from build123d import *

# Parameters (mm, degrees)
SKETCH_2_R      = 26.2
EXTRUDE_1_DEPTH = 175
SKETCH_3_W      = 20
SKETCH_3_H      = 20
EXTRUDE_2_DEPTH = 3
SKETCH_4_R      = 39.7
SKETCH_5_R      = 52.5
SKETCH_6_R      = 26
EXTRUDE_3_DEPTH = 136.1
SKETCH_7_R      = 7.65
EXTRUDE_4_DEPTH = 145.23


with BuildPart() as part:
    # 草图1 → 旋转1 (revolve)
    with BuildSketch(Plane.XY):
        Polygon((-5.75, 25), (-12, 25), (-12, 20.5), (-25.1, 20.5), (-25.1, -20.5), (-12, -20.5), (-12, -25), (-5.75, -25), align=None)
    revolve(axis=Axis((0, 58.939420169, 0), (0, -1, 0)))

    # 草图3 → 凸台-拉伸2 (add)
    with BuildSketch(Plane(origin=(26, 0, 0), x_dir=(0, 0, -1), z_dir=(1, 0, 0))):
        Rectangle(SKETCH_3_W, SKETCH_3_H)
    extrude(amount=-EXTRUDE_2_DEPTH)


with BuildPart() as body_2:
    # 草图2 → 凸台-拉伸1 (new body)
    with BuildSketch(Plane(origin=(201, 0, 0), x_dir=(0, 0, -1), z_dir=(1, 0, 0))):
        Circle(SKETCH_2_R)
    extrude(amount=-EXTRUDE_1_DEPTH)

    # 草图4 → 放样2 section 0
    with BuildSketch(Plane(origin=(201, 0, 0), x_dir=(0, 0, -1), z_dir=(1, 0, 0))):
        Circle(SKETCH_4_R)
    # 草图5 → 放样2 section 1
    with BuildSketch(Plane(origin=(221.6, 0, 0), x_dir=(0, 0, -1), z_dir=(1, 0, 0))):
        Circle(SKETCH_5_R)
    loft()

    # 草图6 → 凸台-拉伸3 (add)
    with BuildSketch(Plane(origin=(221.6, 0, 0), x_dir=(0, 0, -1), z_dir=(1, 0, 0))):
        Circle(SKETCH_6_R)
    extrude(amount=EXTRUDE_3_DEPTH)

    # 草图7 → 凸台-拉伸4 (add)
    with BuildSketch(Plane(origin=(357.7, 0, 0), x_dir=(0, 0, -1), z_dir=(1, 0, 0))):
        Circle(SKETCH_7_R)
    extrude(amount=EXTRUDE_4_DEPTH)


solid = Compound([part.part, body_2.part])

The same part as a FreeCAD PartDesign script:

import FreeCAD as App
import Part
import Sketcher
from FreeCAD import Vector
Q = App.Units.Quantity


def add_polygon(sketch, points):
    """Adds a closed chain of lines whose ends are joined by coincident constraints."""
    first, n = sketch.GeometryCount, len(points)
    for a, b in zip(points, points[1:] + points[:1]):
        sketch.addGeometry(Part.LineSegment(App.Vector(*a, 0), App.Vector(*b, 0)), False)
    for i in range(n):
        sketch.addConstraint(Sketcher.Constraint("Coincident", first + i, 2, first + (i + 1) % n, 1))

doc = App.newDocument("Part")
body = doc.addObject("PartDesign::Body", "Body")

# Sketch on XY plane
sketch1 = body.newObject("Sketcher::SketchObject", "Sketch")
sketch1.AttachmentSupport = (doc.getObject("XY_Plane"), [""])
sketch1.MapMode = "FlatFace"
add_polygon(sketch1, [(-5.8, 25), (-12, 25), (-12, 20.5), (-25.1, 20.5), (-25.1, -20.5), (-12, -20.5), (-12, -25), (-5.8, -25)])  # lines 0-7
sketch1.addConstraint(Sketcher.Constraint("Horizontal", 0))
sketch1.addConstraint(Sketcher.Constraint("Vertical", 1))
sketch1.addConstraint(Sketcher.Constraint("Horizontal", 2))
sketch1.addConstraint(Sketcher.Constraint("Vertical", 3))
sketch1.addConstraint(Sketcher.Constraint("Horizontal", 4))
sketch1.addConstraint(Sketcher.Constraint("Vertical", 5))
sketch1.addConstraint(Sketcher.Constraint("Horizontal", 6))
sketch1.addConstraint(Sketcher.Constraint("Vertical", 7))
sketch1.addConstraint(Sketcher.Constraint("Symmetric", 1, 2, 4, 2, -1))
sketch1.addConstraint(Sketcher.Constraint("Equal", 1, 5))
sketch1.addConstraint(Sketcher.Constraint("DistanceY", 3, 2, 3, 1, Q("41 mm")))
sketch1.addConstraint(Sketcher.Constraint("DistanceY", 7, 1, 7, 2, Q("50 mm")))
sketch1.addConstraint(Sketcher.Constraint("DistanceX", 2, 2, 2, 1, Q("13.1 mm")))
sketch1.addConstraint(Sketcher.Constraint("DistanceX", 0, 2, -1, 1, Q("12 mm")))
sketch1.addConstraint(Sketcher.Constraint("DistanceX", 0, 2, 0, 1, Q("6.25 mm")))
revolution = body.newObject("PartDesign::Revolution", "Revolution")
revolution.Profile = sketch1
revolution.ReferenceAxis = (sketch1, ["V_Axis"])
revolution.Angle = 360

# Sketch on YZ plane
sketch2 = body.newObject("Sketcher::SketchObject", "Sketch001")
sketch2.AttachmentSupport = (doc.getObject("YZ_Plane"), [""])
sketch2.MapMode = "FlatFace"
sketch2.AttachmentOffset = App.Placement(Vector(0, 0, 26), App.Rotation())
add_polygon(sketch2, [(10, 10), (-10, 10), (-10, -10), (10, -10)])  # lines 0-3
sketch2.addConstraint(Sketcher.Constraint("Horizontal", 0))
sketch2.addConstraint(Sketcher.Constraint("Vertical", 1))
sketch2.addConstraint(Sketcher.Constraint("Horizontal", 2))
sketch2.addConstraint(Sketcher.Constraint("Vertical", 3))
sketch2.addConstraint(Sketcher.Constraint("Symmetric", 0, 2, 2, 2, -1, 1))
sketch2.addConstraint(Sketcher.Constraint("Equal", 2, 1))
sketch2.addConstraint(Sketcher.Constraint("DistanceX", 0, 2, 0, 1, Q("20 mm")))
pad1 = body.newObject("PartDesign::Pad", "Pad")
pad1.Profile = sketch2
pad1.Length = 3
pad1.Reversed = True
body2 = doc.addObject("PartDesign::Body", "Body001")

# Sketch on YZ plane
sketch3 = body2.newObject("Sketcher::SketchObject", "Sketch002")
sketch3.AttachmentSupport = (doc.getObject("YZ_Plane001"), [""])
sketch3.MapMode = "FlatFace"
sketch3.AttachmentOffset = App.Placement(Vector(0, 0, 201), App.Rotation())
sketch3.addGeometry(Part.Circle(Vector(0, 0, 0), Vector(0, 0, 1), 26), False)
sketch3.addConstraint(Sketcher.Constraint("Coincident", 0, 3, -1, 1))
sketch3.addConstraint(Sketcher.Constraint("Diameter", 0, Q("52.4 mm")))
pad2 = body2.newObject("PartDesign::Pad", "Pad001")
pad2.Profile = sketch3
pad2.Length = 175
pad2.Reversed = True

# Sketch on YZ plane
sketch4 = body2.newObject("Sketcher::SketchObject", "Sketch003")
sketch4.AttachmentSupport = (doc.getObject("YZ_Plane001"), [""])
sketch4.MapMode = "FlatFace"
sketch4.AttachmentOffset = App.Placement(Vector(0, 0, 201), App.Rotation())
sketch4.addGeometry(Part.Circle(Vector(0, 0, 0), Vector(0, 0, 1), 40), False)
sketch4.addConstraint(Sketcher.Constraint("Coincident", 0, 3, -1, 1))
sketch4.addConstraint(Sketcher.Constraint("Diameter", 0, Q("79.4 mm")))

# Sketch on YZ plane
sketch5 = body2.newObject("Sketcher::SketchObject", "Sketch004")
sketch5.AttachmentSupport = (doc.getObject("YZ_Plane001"), [""])
sketch5.MapMode = "FlatFace"
sketch5.AttachmentOffset = App.Placement(Vector(0, 0, 221.6), App.Rotation())
sketch5.addGeometry(Part.Circle(Vector(0, 0, 0), Vector(0, 0, 1), 52), False)
sketch5.addConstraint(Sketcher.Constraint("Coincident", 0, 3, -1, 1))
sketch5.addConstraint(Sketcher.Constraint("Diameter", 0, Q("105 mm")))

additiveloft = body2.newObject("PartDesign::AdditiveLoft", "AdditiveLoft")
additiveloft.Profile = sketch4
additiveloft.Sections = [sketch5]

# Sketch on YZ plane
sketch6 = body2.newObject("Sketcher::SketchObject", "Sketch005")
sketch6.AttachmentSupport = (doc.getObject("YZ_Plane001"), [""])
sketch6.MapMode = "FlatFace"
sketch6.AttachmentOffset = App.Placement(Vector(0, 0, 221.6), App.Rotation())
sketch6.addGeometry(Part.Circle(Vector(0, 0, 0), Vector(0, 0, 1), 26), False)
sketch6.addConstraint(Sketcher.Constraint("Coincident", 0, 3, -1, 1))
sketch6.addConstraint(Sketcher.Constraint("Diameter", 0, Q("52 mm")))
pad3 = body2.newObject("PartDesign::Pad", "Pad002")
pad3.Profile = sketch6
pad3.Length = 136.1

# Sketch on YZ plane
sketch7 = body2.newObject("Sketcher::SketchObject", "Sketch006")
sketch7.AttachmentSupport = (doc.getObject("YZ_Plane001"), [""])
sketch7.MapMode = "FlatFace"
sketch7.AttachmentOffset = App.Placement(Vector(0, 0, 357.7), App.Rotation())
sketch7.addGeometry(Part.Circle(Vector(0, 0, 0), Vector(0, 0, 1), 8), False)
sketch7.addConstraint(Sketcher.Constraint("Coincident", 0, 3, -1, 1))
sketch7.addConstraint(Sketcher.Constraint("Diameter", 0, Q("15.3 mm")))
pad4 = body2.newObject("PartDesign::Pad", "Pad003")
pad4.Profile = sketch7
pad4.Length = 145.23

doc.recompute()
